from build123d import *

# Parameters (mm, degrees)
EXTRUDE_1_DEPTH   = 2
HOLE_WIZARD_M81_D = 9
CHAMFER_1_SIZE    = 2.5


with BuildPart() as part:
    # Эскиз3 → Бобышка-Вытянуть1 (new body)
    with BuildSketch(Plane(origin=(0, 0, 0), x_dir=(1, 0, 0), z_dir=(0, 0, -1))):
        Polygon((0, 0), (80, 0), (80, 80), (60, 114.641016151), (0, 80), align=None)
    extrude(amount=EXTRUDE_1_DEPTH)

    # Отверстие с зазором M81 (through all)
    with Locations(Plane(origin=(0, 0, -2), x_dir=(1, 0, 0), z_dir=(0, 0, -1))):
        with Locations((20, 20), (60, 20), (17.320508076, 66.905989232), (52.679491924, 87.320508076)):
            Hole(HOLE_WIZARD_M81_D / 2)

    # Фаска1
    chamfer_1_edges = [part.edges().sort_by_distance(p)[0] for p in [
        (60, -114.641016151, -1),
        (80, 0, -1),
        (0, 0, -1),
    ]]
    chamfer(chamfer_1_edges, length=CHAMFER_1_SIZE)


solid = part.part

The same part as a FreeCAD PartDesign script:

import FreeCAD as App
import Part
import Sketcher

V = App.Vector
Q = App.Units.Quantity


def edges_at(feature, points):
    """Names of the edges that pass closest to the given points."""
    edges = feature.Shape.Edges
    near = lambda p: min(range(len(edges)), key=lambda i: edges[i].distToShape(Part.Vertex(*p))[0])
    return sorted({f"Edge{near(p) + 1}" for p in points})

doc = App.newDocument("Part")
params = doc.addObject("Spreadsheet::Sheet", "Params")
for row, (alias, value) in enumerate([
    ("sketch1_width", "80 mm"),
    ("pad1_length", "2 mm"),
    ("sketch2_diameter", "9 mm"),
    ("hole_diameter", "9 mm"),
    ("chamfer_size", "2.5 mm"),
], start=1):
    params.set(f"A{row}", alias)
    params.set(f"B{row}", "=" + value)
    params.setAlias(f"B{row}", alias)

body = doc.addObject("PartDesign::Body", "Body")

# Sketch on XY plane
sketch1 = doc.addObject("Sketcher::SketchObject", "Sketch")
body.addObject(sketch1)
sketch1.AttachmentSupport = (doc.XY_Plane, [""])
sketch1.MapMode = "FlatFace"
sketch1.addGeometry(Part.LineSegment(V(0, 0, 0), V(80, 0, 0)), False)
sketch1.addGeometry(Part.LineSegment(V(80, 0, 0), V(80, -80, 0)), False)
sketch1.addGeometry(Part.LineSegment(V(80, -80, 0), V(60, -114.641016, 0)), False)
sketch1.addGeometry(Part.LineSegment(V(60, -114.641016, 0), V(0, -80, 0)), False)
sketch1.addGeometry(Part.LineSegment(V(0, -80, 0), V(0, 0, 0)), False)
sketch1.addConstraint(Sketcher.Constraint("Coincident", 0, 2, 1, 1))
sketch1.addConstraint(Sketcher.Constraint("Coincident", 1, 2, 2, 1))
sketch1.addConstraint(Sketcher.Constraint("Coincident", 2, 2, 3, 1))
sketch1.addConstraint(Sketcher.Constraint("Coincident", 3, 2, 4, 1))
sketch1.addConstraint(Sketcher.Constraint("Coincident", 4, 2, 0, 1))
sketch1.addConstraint(Sketcher.Constraint("Horizontal", 0))
sketch1.addConstraint(Sketcher.Constraint("Vertical", 1))
sketch1.addConstraint(Sketcher.Constraint("Vertical", 4))
sketch1.addConstraint(Sketcher.Constraint("Coincident", 4, 2, -1, 1))
sketch1.addConstraint(Sketcher.Constraint("Perpendicular", 2, 3))
sketch1.addConstraint(Sketcher.Constraint("Horizontal", 1, 2, 3, 2))
sketch1.addConstraint(Sketcher.Constraint("Equal", 0, 1))
sketch1.addConstraint(Sketcher.Constraint("DistanceX", 0, 1, 0, 2, Q("80 mm")))
sketch1.addConstraint(Sketcher.Constraint("Angle", 2, Q("-120 deg")))
sketch1.setExpression("Constraints[12]", "Params.sketch1_width")
pad1 = doc.addObject("PartDesign::Pad", "Pad")
body.addObject(pad1)
pad1.Profile = sketch1
pad1.setExpression("Length", "Params.pad1_length")
pad1.Reversed = True

# Sketch on XY plane
sketch2 = doc.addObject("Sketcher::SketchObject", "Sketch001")
body.addObject(sketch2)
sketch2.AttachmentSupport = (doc.XY_Plane, [""])
sketch2.MapMode = "FlatFace"
sketch2.AttachmentOffset = App.Placement(V(0, 0, -2), App.Rotation())
sketch2.addGeometry(Part.Circle(V(20, -20, 0), V(0, 0, 1), 4.5), False)
sketch2.addGeometry(Part.Circle(V(60, -20, 0), V(0, 0, 1), 4.5), False)
sketch2.addGeometry(Part.Circle(V(17.320508, -66.905989, 0), V(0, 0, 1), 4.5), False)
sketch2.addGeometry(Part.Circle(V(52.679492, -87.320508, 0), V(0, 0, 1), 4.5), False)
sketch2.addConstraint(Sketcher.Constraint("Equal", 0, 1))
sketch2.addConstraint(Sketcher.Constraint("Equal", 1, 2))
sketch2.addConstraint(Sketcher.Constraint("Equal", 2, 3))
sketch2.addConstraint(Sketcher.Constraint("Horizontal", 0, 3, 1, 3))
sketch2.addConstraint(Sketcher.Constraint("Diameter", 0, Q("9 mm")))
sketch2.addConstraint(Sketcher.Constraint("DistanceX", -1, 1, 0, 3, Q("20 mm")))
sketch2.addConstraint(Sketcher.Constraint("DistanceY", 0, 3, -1, 1, Q("20 mm")))
sketch2.addConstraint(Sketcher.Constraint("DistanceX", -1, 1, 1, 3, Q("60 mm")))
sketch2.addConstraint(Sketcher.Constraint("DistanceX", -1, 1, 2, 3, Q("17.320508 mm")))
sketch2.addConstraint(Sketcher.Constraint("DistanceY", 2, 3, -1, 1, Q("66.905989 mm")))
sketch2.addConstraint(Sketcher.Constraint("DistanceX", -1, 1, 3, 3, Q("52.679492 mm")))
sketch2.addConstraint(Sketcher.Constraint("DistanceY", 3, 3, -1, 1, Q("87.320508 mm")))
sketch2.setExpression("Constraints[4]", "Params.sketch2_diameter")
doc.recompute()
hole = doc.addObject("PartDesign::Hole", "Hole")
body.addObject(hole)
hole.Profile = sketch2
hole.ThreadType = "None"
hole.setExpression("Diameter", "Params.hole_diameter")
hole.DepthType = "ThroughAll"
hole.Reversed = True
doc.recompute()

chamfer = doc.addObject("PartDesign::Chamfer", "Chamfer")
body.addObject(chamfer)
chamfer.Base = (hole, edges_at(hole, [(60, -114.641, -1), (80, 0, -1), (0, 0, -1)]))
chamfer.setExpression("Size", "Params.chamfer_size")

doc.recompute()
